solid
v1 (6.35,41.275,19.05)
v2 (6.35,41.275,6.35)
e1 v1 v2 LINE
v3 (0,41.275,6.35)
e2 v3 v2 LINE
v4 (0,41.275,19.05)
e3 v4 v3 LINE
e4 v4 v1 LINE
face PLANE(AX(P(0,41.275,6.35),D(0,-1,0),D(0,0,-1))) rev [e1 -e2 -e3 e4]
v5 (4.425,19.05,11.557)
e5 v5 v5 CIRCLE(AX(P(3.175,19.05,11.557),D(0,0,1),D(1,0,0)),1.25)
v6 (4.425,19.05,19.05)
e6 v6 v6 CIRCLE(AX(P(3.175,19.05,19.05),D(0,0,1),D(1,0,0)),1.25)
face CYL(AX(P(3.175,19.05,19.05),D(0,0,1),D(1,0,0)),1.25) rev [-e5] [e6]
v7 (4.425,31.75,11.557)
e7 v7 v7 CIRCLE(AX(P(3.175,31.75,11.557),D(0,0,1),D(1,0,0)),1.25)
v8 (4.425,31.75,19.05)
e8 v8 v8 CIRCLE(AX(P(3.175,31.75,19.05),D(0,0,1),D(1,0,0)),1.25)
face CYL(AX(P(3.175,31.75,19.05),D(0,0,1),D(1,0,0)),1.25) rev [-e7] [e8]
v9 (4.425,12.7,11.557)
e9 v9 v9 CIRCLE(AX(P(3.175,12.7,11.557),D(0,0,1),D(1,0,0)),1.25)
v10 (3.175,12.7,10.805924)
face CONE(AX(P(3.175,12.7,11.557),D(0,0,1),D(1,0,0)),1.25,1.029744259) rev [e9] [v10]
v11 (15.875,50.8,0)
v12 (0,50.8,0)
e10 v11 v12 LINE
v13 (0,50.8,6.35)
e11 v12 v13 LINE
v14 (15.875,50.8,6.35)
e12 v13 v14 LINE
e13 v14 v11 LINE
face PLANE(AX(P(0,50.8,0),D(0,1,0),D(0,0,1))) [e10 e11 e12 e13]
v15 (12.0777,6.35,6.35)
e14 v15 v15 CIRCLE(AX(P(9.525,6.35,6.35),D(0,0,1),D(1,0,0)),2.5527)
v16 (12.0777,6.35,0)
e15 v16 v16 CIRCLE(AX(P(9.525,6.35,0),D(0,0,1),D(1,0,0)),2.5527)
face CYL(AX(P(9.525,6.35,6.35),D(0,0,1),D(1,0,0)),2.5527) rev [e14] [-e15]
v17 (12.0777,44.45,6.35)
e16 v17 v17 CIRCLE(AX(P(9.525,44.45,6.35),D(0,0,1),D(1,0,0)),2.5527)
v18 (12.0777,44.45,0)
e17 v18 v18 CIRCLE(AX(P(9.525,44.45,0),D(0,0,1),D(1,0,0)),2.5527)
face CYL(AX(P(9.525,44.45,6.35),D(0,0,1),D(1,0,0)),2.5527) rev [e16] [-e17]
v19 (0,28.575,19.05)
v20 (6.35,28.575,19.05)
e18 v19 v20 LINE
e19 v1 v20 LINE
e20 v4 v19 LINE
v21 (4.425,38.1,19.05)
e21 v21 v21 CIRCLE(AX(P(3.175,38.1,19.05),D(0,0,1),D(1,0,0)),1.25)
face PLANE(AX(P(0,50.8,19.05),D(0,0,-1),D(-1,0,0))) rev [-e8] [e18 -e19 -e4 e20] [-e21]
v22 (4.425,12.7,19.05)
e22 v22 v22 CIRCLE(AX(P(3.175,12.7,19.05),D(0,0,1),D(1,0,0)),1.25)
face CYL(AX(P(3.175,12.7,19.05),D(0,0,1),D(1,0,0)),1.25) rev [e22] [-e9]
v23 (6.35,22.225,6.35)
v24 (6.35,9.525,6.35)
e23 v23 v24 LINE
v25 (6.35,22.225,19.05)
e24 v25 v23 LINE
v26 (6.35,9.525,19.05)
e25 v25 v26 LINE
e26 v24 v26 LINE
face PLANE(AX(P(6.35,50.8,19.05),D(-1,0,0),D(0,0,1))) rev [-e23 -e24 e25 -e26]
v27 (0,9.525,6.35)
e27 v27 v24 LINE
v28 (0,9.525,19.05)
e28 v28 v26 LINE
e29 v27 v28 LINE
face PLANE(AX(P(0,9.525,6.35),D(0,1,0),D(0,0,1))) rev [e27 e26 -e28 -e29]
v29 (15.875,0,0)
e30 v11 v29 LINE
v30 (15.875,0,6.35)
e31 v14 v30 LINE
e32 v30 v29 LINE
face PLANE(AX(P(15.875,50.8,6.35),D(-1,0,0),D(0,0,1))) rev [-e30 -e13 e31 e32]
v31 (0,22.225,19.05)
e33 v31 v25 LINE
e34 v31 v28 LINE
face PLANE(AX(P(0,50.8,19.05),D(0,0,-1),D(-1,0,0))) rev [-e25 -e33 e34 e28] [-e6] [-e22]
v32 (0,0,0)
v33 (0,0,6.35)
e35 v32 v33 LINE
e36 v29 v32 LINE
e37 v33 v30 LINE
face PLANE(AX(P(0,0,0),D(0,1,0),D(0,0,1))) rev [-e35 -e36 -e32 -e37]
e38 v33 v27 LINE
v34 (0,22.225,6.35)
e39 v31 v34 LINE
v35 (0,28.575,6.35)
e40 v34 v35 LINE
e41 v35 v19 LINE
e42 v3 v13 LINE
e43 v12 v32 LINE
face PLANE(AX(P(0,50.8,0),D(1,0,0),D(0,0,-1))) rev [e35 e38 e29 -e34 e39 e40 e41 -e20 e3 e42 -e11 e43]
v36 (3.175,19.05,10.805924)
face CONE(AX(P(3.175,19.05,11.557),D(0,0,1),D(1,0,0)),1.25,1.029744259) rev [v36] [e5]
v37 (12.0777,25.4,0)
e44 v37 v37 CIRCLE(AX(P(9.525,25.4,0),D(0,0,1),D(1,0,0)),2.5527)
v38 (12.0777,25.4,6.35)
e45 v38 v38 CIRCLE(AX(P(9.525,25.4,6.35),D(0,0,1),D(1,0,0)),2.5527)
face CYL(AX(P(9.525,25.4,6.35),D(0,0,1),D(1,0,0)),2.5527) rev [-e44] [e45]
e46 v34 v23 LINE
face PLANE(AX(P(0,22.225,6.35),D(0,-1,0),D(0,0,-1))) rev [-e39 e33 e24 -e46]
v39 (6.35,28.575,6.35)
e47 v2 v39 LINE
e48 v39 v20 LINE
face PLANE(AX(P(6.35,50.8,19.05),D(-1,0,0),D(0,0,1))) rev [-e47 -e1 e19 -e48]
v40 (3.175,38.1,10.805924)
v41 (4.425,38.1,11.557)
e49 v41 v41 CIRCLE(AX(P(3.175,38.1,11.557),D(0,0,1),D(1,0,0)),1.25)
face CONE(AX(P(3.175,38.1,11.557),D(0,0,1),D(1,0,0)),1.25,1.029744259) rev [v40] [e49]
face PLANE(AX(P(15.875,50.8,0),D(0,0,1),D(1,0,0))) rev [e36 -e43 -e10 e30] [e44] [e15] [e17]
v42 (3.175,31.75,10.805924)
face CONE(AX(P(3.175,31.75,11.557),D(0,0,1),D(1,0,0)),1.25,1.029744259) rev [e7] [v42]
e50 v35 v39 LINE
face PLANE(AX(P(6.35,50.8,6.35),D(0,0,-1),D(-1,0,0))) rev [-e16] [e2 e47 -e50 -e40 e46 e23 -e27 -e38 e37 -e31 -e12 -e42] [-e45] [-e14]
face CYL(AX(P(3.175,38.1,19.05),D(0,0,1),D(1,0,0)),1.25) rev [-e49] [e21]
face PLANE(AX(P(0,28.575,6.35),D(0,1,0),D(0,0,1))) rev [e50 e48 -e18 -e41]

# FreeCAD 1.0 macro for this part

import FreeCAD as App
import Part
import Sketcher

V = App.Vector
Q = App.Units.Quantity


def add_polygon(sketch, points):
    """Adds a closed chain of lines whose ends are joined by coincident constraints."""
    first, n = sketch.GeometryCount, len(points)
    for a, b in zip(points, points[1:] + points[:1]):
        sketch.addGeometry(Part.LineSegment(App.Vector(*a, 0), App.Vector(*b, 0)), False)
    for i in range(n):
        sketch.addConstraint(Sketcher.Constraint("Coincident", first + i, 2, first + (i + 1) % n, 1))

doc = App.newDocument("Part")
params = doc.addObject("Spreadsheet::Sheet", "Params")
for row, (alias, value) in enumerate([
    ("sketch1_height", "0.5 in"),
    ("sketch1_width", "0.25 in"),
    ("sketch1_width2", "0.375 in"),
    ("pad1_length", "2 in"),
    ("hole_diameter", "2.5 mm"),
    ("hole_depth", "0.295 in"),
    ("sketch3_height", "0.5 in"),
    ("sketch3_width", "0.25 in"),
    ("sketch4_diameter", "0.201 in"),
    ("hole2_diameter", "0.201 in"),
    ("hole2_depth", "0.25 in"),
], start=1):
    params.set(f"A{row}", alias)
    params.set(f"B{row}", "=" + value)
    params.setAlias(f"B{row}", alias)

body = doc.addObject("PartDesign::Body", "Body")

# Sketch on XZ plane
sketch1 = doc.addObject("Sketcher::SketchObject", "Sketch")
body.addObject(sketch1)
sketch1.AttachmentSupport = (doc.XZ_Plane, [""])
sketch1.MapMode = "FlatFace"
add_polygon(sketch1, [(0, 0), (0, 19), (6, 19), (6, 6), (16, 6), (16, 0)])  # lines 0-5
sketch1.addConstraint([
    Sketcher.Constraint("Vertical", 0),
    Sketcher.Constraint("Horizontal", 1),
    Sketcher.Constraint("Vertical", 2),
    Sketcher.Constraint("Horizontal", 3),
    Sketcher.Constraint("Vertical", 4),
    Sketcher.Constraint("Horizontal", 5),
    Sketcher.Constraint("Coincident", 5, 2, -1, 1),
    Sketcher.Constraint("Equal", 1, 4),
    Sketcher.Constraint("DistanceY", 2, 2, 2, 1, Q("0.5 in")),
    Sketcher.Constraint("DistanceX", 1, 1, 1, 2, Q("0.25 in")),
    Sketcher.Constraint("DistanceX", 3, 1, 3, 2, Q("0.375 in")),
])
sketch1.setExpression("Constraints[14]", "Params.sketch1_height")
sketch1.setExpression("Constraints[15]", "Params.sketch1_width")
sketch1.setExpression("Constraints[16]", "Params.sketch1_width2")
pad1 = doc.addObject("PartDesign::Pad", "Pad")
body.addObject(pad1)
pad1.Profile = sketch1
pad1.setExpression("Length", "Params.pad1_length")
pad1.Reversed = True

# Sketch on XY plane
sketch2 = doc.addObject("Sketcher::SketchObject", "Sketch001")
body.addObject(sketch2)
sketch2.AttachmentSupport = (doc.XY_Plane, [""])
sketch2.MapMode = "FlatFace"
sketch2.AttachmentOffset = App.Placement(V(0, 0, 0.75 * 25.4), App.Rotation())
sketch2.addGeometry([
    Part.Circle(V(3.2, 38.1, 0), V(0, 0, 1), 1.2),
    Part.Circle(V(3.2, 12.7, 0), V(0, 0, 1), 1.2),
    Part.Circle(V(3.2, 19.1, 0), V(0, 0, 1), 1.2),
    Part.Circle(V(3.2, 31.8, 0), V(0, 0, 1), 1.2),
], False)
sketch2.addConstraint([
    Sketcher.Constraint("Equal", 0, 1),
    Sketcher.Constraint("Equal", 1, 2),
    Sketcher.Constraint("Equal", 2, 3),
    Sketcher.Constraint("Vertical", 0, 3, 1, 3),
    Sketcher.Constraint("Vertical", 1, 3, 2, 3),
    Sketcher.Constraint("Vertical", 2, 3, 3, 3),
    Sketcher.Constraint("DistanceY", 1, 3, 0, 3, Q("1 in")),
    Sketcher.Constraint("DistanceY", -1, 1, 0, 3, Q("1.5 in")),
    Sketcher.Constraint("DistanceY", 2, 3, 3, 3, Q("0.5 in")),
    Sketcher.Constraint("Diameter", 0, 2.5),
    Sketcher.Constraint("DistanceY", -1, 1, 2, 3, Q("0.75 in")),
    Sketcher.Constraint("DistanceX", -1, 1, 0, 3, Q("0.125 in")),
])
doc.recompute()
hole = doc.addObject("PartDesign::Hole", "Hole")
body.addObject(hole)
hole.Profile = sketch2
hole.ThreadType = "None"
hole.setExpression("Diameter", "Params.hole_diameter")
hole.DepthType = "Dimension"
hole.setExpression("Depth", "Params.hole_depth")
hole.DrillPoint = "Angled"
hole.DrillPointAngle = 118

# Sketch on YZ plane
sketch3 = doc.addObject("Sketcher::SketchObject", "Sketch002")
body.addObject(sketch3)
sketch3.AttachmentSupport = (doc.YZ_Plane, [""])
sketch3.MapMode = "FlatFace"
sketch3.AttachmentOffset = App.Placement(V(0, 0, 0.25 * 25.4), App.Rotation())
add_polygon(sketch3, [(10, 19), (0, 19), (0, 6), (10, 6)])  # lines 0-3
add_polygon(sketch3, [(51, 19), (41, 19), (41, 6), (51, 6)])  # lines 4-7
add_polygon(sketch3, [(29, 19), (22, 19), (22, 6), (29, 6)])  # lines 8-11
sketch3.addConstraint([
    Sketcher.Constraint("Horizontal", 0),
    Sketcher.Constraint("Vertical", 1),
    Sketcher.Constraint("Horizontal", 2),
    Sketcher.Constraint("Vertical", 3),
    Sketcher.Constraint("Horizontal", 4),
    Sketcher.Constraint("Vertical", 5),
    Sketcher.Constraint("Horizontal", 6),
    Sketcher.Constraint("Vertical", 7),
    Sketcher.Constraint("Horizontal", 8),
    Sketcher.Constraint("Vertical", 9),
    Sketcher.Constraint("Horizontal", 10),
    Sketcher.Constraint("Vertical", 11),
    Sketcher.Constraint("PointOnObject", 0, 2, -2),
    Sketcher.Constraint("Horizontal", 3, 2, 4, 2),
    Sketcher.Constraint("Horizontal", 2, 2, 5, 2),
    Sketcher.Constraint("Horizontal", 7, 2, 8, 2),
    Sketcher.Constraint("Horizontal", 6, 2, 9, 2),
    Sketcher.Constraint("Equal", 2, 4),
    Sketcher.Constraint("DistanceY", 1, 2, 1, 1, Q("0.5 in")),
    Sketcher.Constraint("DistanceX", -1, 1, 6, 2, Q("2 in")),
    Sketcher.Constraint("DistanceX", 8, 2, 8, 1, Q("0.25 in")),
    Sketcher.Constraint("DistanceX", 3, 2, 8, 2, Q("0.5 in")),
    Sketcher.Constraint("DistanceX", 10, 2, 5, 2, Q("0.5 in")),
    Sketcher.Constraint("DistanceY", -1, 1, 0, 2, Q("0.75 in")),
])
sketch3.setExpression("Constraints[30]", "Params.sketch3_height")
sketch3.setExpression("Constraints[32]", "Params.sketch3_width")
pocket1 = doc.addObject("PartDesign::Pocket", "Pocket")
body.addObject(pocket1)
pocket1.Profile = sketch3
pocket1.Type = "ThroughAll"

# Sketch on XY plane
sketch4 = doc.addObject("Sketcher::SketchObject", "Sketch003")
body.addObject(sketch4)
sketch4.AttachmentSupport = (doc.XY_Plane, [""])
sketch4.MapMode = "FlatFace"
sketch4.AttachmentOffset = App.Placement(V(0, 0, 0.25 * 25.4), App.Rotation())
sketch4.addGeometry([
    Part.Circle(V(9.5, 6.3, 0), V(0, 0, 1), 2.6),
    Part.Circle(V(9.5, 25.4, 0), V(0, 0, 1), 2.6),
    Part.Circle(V(9.5, 44.5, 0), V(0, 0, 1), 2.6),
], False)
sketch4.addConstraint([
    Sketcher.Constraint("Equal", 0, 1),
    Sketcher.Constraint("Equal", 1, 2),
    Sketcher.Constraint("Vertical", 0, 3, 1, 3),
    Sketcher.Constraint("Vertical", 1, 3, 2, 3),
    Sketcher.Constraint("Diameter", 0, Q("0.201 in")),
    Sketcher.Constraint("DistanceY", -1, 1, 1, 3, Q("1 in")),
    Sketcher.Constraint("DistanceY", 0, 3, 2, 3, Q("1.5 in")),
    Sketcher.Constraint("DistanceY", -1, 1, 0, 3, Q("0.25 in")),
    Sketcher.Constraint("DistanceX", -1, 1, 0, 3, Q("0.375 in")),
])
sketch4.setExpression("Constraints[4]", "Params.sketch4_diameter")
doc.recompute()
hole2 = doc.addObject("PartDesign::Hole", "Hole001")
body.addObject(hole2)
hole2.Profile = sketch4
hole2.ThreadType = "None"
hole2.setExpression("Diameter", "Params.hole2_diameter")
hole2.DepthType = "Dimension"
hole2.setExpression("Depth", "Params.hole2_depth")
hole2.DrillPoint = "Flat"

doc.recompute()
